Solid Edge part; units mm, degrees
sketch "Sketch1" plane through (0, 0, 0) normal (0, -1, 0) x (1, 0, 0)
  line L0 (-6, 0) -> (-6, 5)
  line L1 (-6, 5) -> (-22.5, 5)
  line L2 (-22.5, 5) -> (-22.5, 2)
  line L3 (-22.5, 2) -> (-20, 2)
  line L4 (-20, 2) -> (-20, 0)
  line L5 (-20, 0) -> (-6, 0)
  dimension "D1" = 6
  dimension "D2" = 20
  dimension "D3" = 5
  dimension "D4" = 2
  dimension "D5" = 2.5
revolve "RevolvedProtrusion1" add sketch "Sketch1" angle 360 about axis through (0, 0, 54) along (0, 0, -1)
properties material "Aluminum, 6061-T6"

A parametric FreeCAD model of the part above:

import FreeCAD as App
import Part
import Sketcher
Q = App.Units.Quantity

doc = App.newDocument("Part")
params = doc.addObject("Spreadsheet::Sheet", "Params")
for row, (alias, value) in enumerate([
    ("sketch1_width", "14 mm"),
    ("sketch1_height", "5 mm"),
    ("sketch1_height2", "3 mm"),
    ("sketch1_width2", "16.5 mm"),
    ("revolution_angle", "360 deg"),
], start=1):
    params.set(f"A{row}", alias)
    params.set(f"B{row}", "=" + value)
    params.setAlias(f"B{row}", alias)

body = doc.addObject("PartDesign::Body", "Body")

# Sketch on XZ plane
sketch1 = doc.addObject("Sketcher::SketchObject", "Sketch")
body.addObject(sketch1)
sketch1.AttachmentSupport = (doc.XZ_Plane, [""])
sketch1.MapMode = "FlatFace"
sketch1.addGeometry(Part.LineSegment(App.Vector(-20, 0, 0), App.Vector(-6, 0, 0)), False)
sketch1.addGeometry(Part.LineSegment(App.Vector(-6, 0, 0), App.Vector(-6, 5, 0)), False)
sketch1.addGeometry(Part.LineSegment(App.Vector(-6, 5, 0), App.Vector(-22.5, 5, 0)), False)
sketch1.addGeometry(Part.LineSegment(App.Vector(-22.5, 5, 0), App.Vector(-22.5, 2, 0)), False)
sketch1.addGeometry(Part.LineSegment(App.Vector(-22.5, 2, 0), App.Vector(-20, 2, 0)), False)
sketch1.addGeometry(Part.LineSegment(App.Vector(-20, 2, 0), App.Vector(-20, 0, 0)), False)
sketch1.addConstraint(Sketcher.Constraint("Coincident", 0, 2, 1, 1))
sketch1.addConstraint(Sketcher.Constraint("Coincident", 1, 2, 2, 1))
sketch1.addConstraint(Sketcher.Constraint("Coincident", 2, 2, 3, 1))
sketch1.addConstraint(Sketcher.Constraint("Coincident", 3, 2, 4, 1))
sketch1.addConstraint(Sketcher.Constraint("Coincident", 4, 2, 5, 1))
sketch1.addConstraint(Sketcher.Constraint("Coincident", 5, 2, 0, 1))
sketch1.addConstraint(Sketcher.Constraint("Horizontal", 0))
sketch1.addConstraint(Sketcher.Constraint("Vertical", 1))
sketch1.addConstraint(Sketcher.Constraint("Horizontal", 2))
sketch1.addConstraint(Sketcher.Constraint("Vertical", 3))
sketch1.addConstraint(Sketcher.Constraint("Horizontal", 4))
sketch1.addConstraint(Sketcher.Constraint("Vertical", 5))
sketch1.addConstraint(Sketcher.Constraint("PointOnObject", 0, 2, -1))
sketch1.addConstraint(Sketcher.Constraint("DistanceX", 2, 2, -1, 1, Q("22.5 mm")))
sketch1.addConstraint(Sketcher.Constraint("DistanceX", 0, 1, 0, 2, Q("14 mm")))
sketch1.addConstraint(Sketcher.Constraint("DistanceY", 1, 1, 1, 2, Q("5 mm")))
sketch1.addConstraint(Sketcher.Constraint("DistanceY", 3, 2, 3, 1, Q("3 mm")))
sketch1.addConstraint(Sketcher.Constraint("DistanceX", 2, 2, 2, 1, Q("16.5 mm")))
sketch1.setExpression("Constraints[14]", "Params.sketch1_width")
sketch1.setExpression("Constraints[15]", "Params.sketch1_height")
sketch1.setExpression("Constraints[16]", "Params.sketch1_height2")
sketch1.setExpression("Constraints[17]", "Params.sketch1_width2")
revolution = doc.addObject("PartDesign::Revolution", "Revolution")
body.addObject(revolution)
revolution.Profile = sketch1
revolution.ReferenceAxis = (sketch1, ["V_Axis"])
revolution.setExpression("Angle", "Params.revolution_angle")

doc.recompute()
